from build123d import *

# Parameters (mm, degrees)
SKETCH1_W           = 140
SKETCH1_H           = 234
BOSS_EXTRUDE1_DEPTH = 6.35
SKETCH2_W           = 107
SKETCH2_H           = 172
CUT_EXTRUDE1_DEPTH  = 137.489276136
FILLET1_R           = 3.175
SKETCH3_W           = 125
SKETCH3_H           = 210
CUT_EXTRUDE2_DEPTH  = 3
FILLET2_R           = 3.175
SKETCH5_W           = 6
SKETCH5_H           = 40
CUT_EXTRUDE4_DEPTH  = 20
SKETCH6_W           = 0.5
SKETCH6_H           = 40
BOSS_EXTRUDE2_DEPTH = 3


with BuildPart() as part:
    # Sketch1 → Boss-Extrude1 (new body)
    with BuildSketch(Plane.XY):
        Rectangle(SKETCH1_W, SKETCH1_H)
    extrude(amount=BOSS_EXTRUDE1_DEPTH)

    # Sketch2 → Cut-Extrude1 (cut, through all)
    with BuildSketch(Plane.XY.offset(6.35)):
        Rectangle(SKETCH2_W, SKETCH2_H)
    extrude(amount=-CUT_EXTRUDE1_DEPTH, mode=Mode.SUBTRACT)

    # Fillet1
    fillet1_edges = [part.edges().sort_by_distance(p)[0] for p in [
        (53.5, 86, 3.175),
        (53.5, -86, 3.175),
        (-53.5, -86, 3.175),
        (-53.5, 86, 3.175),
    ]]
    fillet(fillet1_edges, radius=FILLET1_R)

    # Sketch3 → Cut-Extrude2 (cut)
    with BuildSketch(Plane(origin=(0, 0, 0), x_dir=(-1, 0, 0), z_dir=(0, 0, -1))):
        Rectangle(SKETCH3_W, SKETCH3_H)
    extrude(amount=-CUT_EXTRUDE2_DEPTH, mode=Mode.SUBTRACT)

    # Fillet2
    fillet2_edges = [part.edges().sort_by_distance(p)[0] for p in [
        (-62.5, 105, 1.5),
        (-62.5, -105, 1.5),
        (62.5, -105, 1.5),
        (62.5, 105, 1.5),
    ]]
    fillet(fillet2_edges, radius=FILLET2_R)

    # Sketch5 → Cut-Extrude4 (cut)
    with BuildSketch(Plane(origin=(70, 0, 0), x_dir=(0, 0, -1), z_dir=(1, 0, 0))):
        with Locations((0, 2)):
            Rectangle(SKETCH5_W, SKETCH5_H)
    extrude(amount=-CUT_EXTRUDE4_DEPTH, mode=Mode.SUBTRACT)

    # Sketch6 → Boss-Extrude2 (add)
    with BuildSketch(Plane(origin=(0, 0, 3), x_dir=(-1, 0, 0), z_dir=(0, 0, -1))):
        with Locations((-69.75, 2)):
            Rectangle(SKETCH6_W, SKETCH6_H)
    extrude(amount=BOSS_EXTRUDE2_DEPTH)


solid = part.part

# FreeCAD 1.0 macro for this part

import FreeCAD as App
import Part
import Sketcher
from FreeCAD import Vector
Q = App.Units.Quantity


def edges_at(feature, points):
    """Names of the edges that pass closest to the given points."""
    edges = feature.Shape.Edges
    near = lambda p: min(range(len(edges)), key=lambda i: edges[i].distToShape(Part.Vertex(*p))[0])
    return sorted({f"Edge{near(p) + 1}" for p in points})


def add_polygon(sketch, points):
    """Adds a closed chain of lines whose ends are joined by coincident constraints."""
    first, n = sketch.GeometryCount, len(points)
    for a, b in zip(points, points[1:] + points[:1]):
        sketch.addGeometry(Part.LineSegment(App.Vector(*a, 0), App.Vector(*b, 0)), False)
    for i in range(n):
        sketch.addConstraint(Sketcher.Constraint("Coincident", first + i, 2, first + (i + 1) % n, 1))

doc = App.newDocument("Part")
body = doc.addObject("PartDesign::Body", "Body")

# Sketch on XY plane
sketch1 = body.newObject("Sketcher::SketchObject", "Sketch")
sketch1.AttachmentSupport = (doc.getObject("XY_Plane"), [""])
sketch1.MapMode = "FlatFace"
add_polygon(sketch1, [(-70, 117), (-70, -117), (70, -117), (70, 117)])  # lines 0-3
sketch1.addConstraint(Sketcher.Constraint("Vertical", 0))
sketch1.addConstraint(Sketcher.Constraint("Horizontal", 1))
sketch1.addConstraint(Sketcher.Constraint("Vertical", 2))
sketch1.addConstraint(Sketcher.Constraint("Horizontal", 3))
sketch1.addConstraint(Sketcher.Constraint("Symmetric", 0, 2, 2, 2, -1, 1))
sketch1.addConstraint(Sketcher.Constraint("DistanceX", 1, 1, 1, 2, Q("140 mm")))
sketch1.addConstraint(Sketcher.Constraint("DistanceY", 0, 2, 0, 1, Q("234 mm")))
pad1 = body.newObject("PartDesign::Pad", "Pad")
pad1.Profile = sketch1
pad1.Length = 6.35

# Sketch on XY plane
sketch2 = body.newObject("Sketcher::SketchObject", "Sketch001")
sketch2.AttachmentSupport = (doc.getObject("XY_Plane"), [""])
sketch2.MapMode = "FlatFace"
sketch2.AttachmentOffset = App.Placement(Vector(0, 0, 6.35), App.Rotation())
add_polygon(sketch2, [(-54, 86), (-54, -86), (54, -86), (54, 86)])  # lines 0-3
sketch2.addConstraint(Sketcher.Constraint("Vertical", 0))
sketch2.addConstraint(Sketcher.Constraint("Horizontal", 1))
sketch2.addConstraint(Sketcher.Constraint("Vertical", 2))
sketch2.addConstraint(Sketcher.Constraint("Horizontal", 3))
sketch2.addConstraint(Sketcher.Constraint("Symmetric", 0, 2, 2, 2, -1, 1))
sketch2.addConstraint(Sketcher.Constraint("DistanceX", 1, 1, 1, 2, Q("107 mm")))
sketch2.addConstraint(Sketcher.Constraint("DistanceY", 0, 2, 0, 1, Q("172 mm")))
pocket1 = body.newObject("PartDesign::Pocket", "Pocket")
pocket1.Profile = sketch2
pocket1.Type = "ThroughAll"
doc.recompute()

fillet = body.newObject("PartDesign::Fillet", "Fillet")
fillet.Base = (pocket1, edges_at(pocket1, [
    (53.5, 86, 3.175),
    (53.5, -86, 3.175),
    (-53.5, -86, 3.175),
    (-53.5, 86, 3.175),
]))
fillet.Radius = 3.175

# Sketch on XY plane
sketch3 = body.newObject("Sketcher::SketchObject", "Sketch002")
sketch3.AttachmentSupport = (doc.getObject("XY_Plane"), [""])
sketch3.MapMode = "FlatFace"
add_polygon(sketch3, [(62, 105), (62, -105), (-62, -105), (-62, 105)])  # lines 0-3
sketch3.addConstraint(Sketcher.Constraint("Vertical", 0))
sketch3.addConstraint(Sketcher.Constraint("Horizontal", 1))
sketch3.addConstraint(Sketcher.Constraint("Vertical", 2))
sketch3.addConstraint(Sketcher.Constraint("Horizontal", 3))
sketch3.addConstraint(Sketcher.Constraint("Symmetric", 0, 2, 2, 2, -1, 1))
sketch3.addConstraint(Sketcher.Constraint("DistanceX", 1, 2, 1, 1, Q("125 mm")))
sketch3.addConstraint(Sketcher.Constraint("DistanceY", 0, 2, 0, 1, Q("210 mm")))
pocket2 = body.newObject("PartDesign::Pocket", "Pocket001")
pocket2.Profile = sketch3
pocket2.Length = 3
pocket2.Reversed = True
doc.recompute()

fillet2 = body.newObject("PartDesign::Fillet", "Fillet001")
fillet2.Base = (pocket2, edges_at(pocket2, [
    (-62.5, 105, 1.5),
    (-62.5, -105, 1.5),
    (62.5, -105, 1.5),
    (62.5, 105, 1.5),
]))
fillet2.Radius = 3.175

# Sketch on YZ plane
sketch4 = body.newObject("Sketcher::SketchObject", "Sketch003")
sketch4.AttachmentSupport = (doc.getObject("YZ_Plane"), [""])
sketch4.MapMode = "FlatFace"
sketch4.AttachmentOffset = App.Placement(Vector(0, 0, 70), App.Rotation())
add_polygon(sketch4, [(22, 3), (-18, 3), (-18, -3), (22, -3)])  # lines 0-3
sketch4.addConstraint(Sketcher.Constraint("Horizontal", 0))
sketch4.addConstraint(Sketcher.Constraint("Vertical", 1))
sketch4.addConstraint(Sketcher.Constraint("Horizontal", 2))
sketch4.addConstraint(Sketcher.Constraint("Vertical", 3))
sketch4.addConstraint(Sketcher.Constraint("DistanceX", 0, 2, 0, 1, Q("40 mm")))
sketch4.addConstraint(Sketcher.Constraint("DistanceY", 1, 2, 1, 1, Q("6 mm")))
sketch4.addConstraint(Sketcher.Constraint("DistanceX", 0, 2, -1, 1, Q("18 mm")))
sketch4.addConstraint(Sketcher.Constraint("DistanceY", -1, 1, 0, 2, Q("3 mm")))
pocket3 = body.newObject("PartDesign::Pocket", "Pocket002")
pocket3.Profile = sketch4
pocket3.Length = 20

# Sketch on XY plane
sketch5 = body.newObject("Sketcher::SketchObject", "Sketch004")
sketch5.AttachmentSupport = (doc.getObject("XY_Plane"), [""])
sketch5.MapMode = "FlatFace"
sketch5.AttachmentOffset = App.Placement(Vector(0, 0, 3), App.Rotation())
add_polygon(sketch5, [(70, 22), (70, -18), (69.5, -18), (69.5, 22)])  # lines 0-3
sketch5.addConstraint(Sketcher.Constraint("Vertical", 0))
sketch5.addConstraint(Sketcher.Constraint("Horizontal", 1))
sketch5.addConstraint(Sketcher.Constraint("Vertical", 2))
sketch5.addConstraint(Sketcher.Constraint("Horizontal", 3))
sketch5.addConstraint(Sketcher.Constraint("DistanceY", 0, 2, 0, 1, Q("40 mm")))
sketch5.addConstraint(Sketcher.Constraint("DistanceX", 1, 2, 1, 1, Q("0.5 mm")))
sketch5.addConstraint(Sketcher.Constraint("DistanceX", -1, 1, 0, 2, Q("70 mm")))
sketch5.addConstraint(Sketcher.Constraint("DistanceY", 0, 2, -1, 1, Q("18 mm")))
pad2 = body.newObject("PartDesign::Pad", "Pad001")
pad2.Profile = sketch5
pad2.Length = 3
pad2.Reversed = True

doc.recompute()
